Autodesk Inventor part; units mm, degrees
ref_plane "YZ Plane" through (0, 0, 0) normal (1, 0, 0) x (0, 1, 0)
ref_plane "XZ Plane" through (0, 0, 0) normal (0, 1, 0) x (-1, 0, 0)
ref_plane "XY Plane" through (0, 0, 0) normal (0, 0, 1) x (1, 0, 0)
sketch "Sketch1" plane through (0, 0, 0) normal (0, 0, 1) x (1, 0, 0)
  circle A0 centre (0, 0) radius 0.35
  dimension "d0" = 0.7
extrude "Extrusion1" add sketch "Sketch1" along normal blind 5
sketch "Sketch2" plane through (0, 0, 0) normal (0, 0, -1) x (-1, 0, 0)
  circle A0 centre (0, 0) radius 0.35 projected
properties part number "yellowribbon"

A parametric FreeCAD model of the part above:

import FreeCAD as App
import Part
import Sketcher

V = App.Vector
Q = App.Units.Quantity

doc = App.newDocument("Part")
body = doc.addObject("PartDesign::Body", "Body")

# Sketch on XY plane
sketch1 = doc.addObject("Sketcher::SketchObject", "Sketch")
body.addObject(sketch1)
sketch1.AttachmentSupport = (doc.XY_Plane, [""])
sketch1.MapMode = "FlatFace"
sketch1.addGeometry(Part.Circle(V(0, 0, 0), V(0, 0, 1), 0.35), False)
sketch1.addConstraint(Sketcher.Constraint("Coincident", 0, 3, -1, 1))
sketch1.addConstraint(Sketcher.Constraint("Diameter", 0, Q("0.7 mm")))
pad1 = doc.addObject("PartDesign::Pad", "Pad")
body.addObject(pad1)
pad1.Profile = sketch1
pad1.Length = 5

doc.recompute()
